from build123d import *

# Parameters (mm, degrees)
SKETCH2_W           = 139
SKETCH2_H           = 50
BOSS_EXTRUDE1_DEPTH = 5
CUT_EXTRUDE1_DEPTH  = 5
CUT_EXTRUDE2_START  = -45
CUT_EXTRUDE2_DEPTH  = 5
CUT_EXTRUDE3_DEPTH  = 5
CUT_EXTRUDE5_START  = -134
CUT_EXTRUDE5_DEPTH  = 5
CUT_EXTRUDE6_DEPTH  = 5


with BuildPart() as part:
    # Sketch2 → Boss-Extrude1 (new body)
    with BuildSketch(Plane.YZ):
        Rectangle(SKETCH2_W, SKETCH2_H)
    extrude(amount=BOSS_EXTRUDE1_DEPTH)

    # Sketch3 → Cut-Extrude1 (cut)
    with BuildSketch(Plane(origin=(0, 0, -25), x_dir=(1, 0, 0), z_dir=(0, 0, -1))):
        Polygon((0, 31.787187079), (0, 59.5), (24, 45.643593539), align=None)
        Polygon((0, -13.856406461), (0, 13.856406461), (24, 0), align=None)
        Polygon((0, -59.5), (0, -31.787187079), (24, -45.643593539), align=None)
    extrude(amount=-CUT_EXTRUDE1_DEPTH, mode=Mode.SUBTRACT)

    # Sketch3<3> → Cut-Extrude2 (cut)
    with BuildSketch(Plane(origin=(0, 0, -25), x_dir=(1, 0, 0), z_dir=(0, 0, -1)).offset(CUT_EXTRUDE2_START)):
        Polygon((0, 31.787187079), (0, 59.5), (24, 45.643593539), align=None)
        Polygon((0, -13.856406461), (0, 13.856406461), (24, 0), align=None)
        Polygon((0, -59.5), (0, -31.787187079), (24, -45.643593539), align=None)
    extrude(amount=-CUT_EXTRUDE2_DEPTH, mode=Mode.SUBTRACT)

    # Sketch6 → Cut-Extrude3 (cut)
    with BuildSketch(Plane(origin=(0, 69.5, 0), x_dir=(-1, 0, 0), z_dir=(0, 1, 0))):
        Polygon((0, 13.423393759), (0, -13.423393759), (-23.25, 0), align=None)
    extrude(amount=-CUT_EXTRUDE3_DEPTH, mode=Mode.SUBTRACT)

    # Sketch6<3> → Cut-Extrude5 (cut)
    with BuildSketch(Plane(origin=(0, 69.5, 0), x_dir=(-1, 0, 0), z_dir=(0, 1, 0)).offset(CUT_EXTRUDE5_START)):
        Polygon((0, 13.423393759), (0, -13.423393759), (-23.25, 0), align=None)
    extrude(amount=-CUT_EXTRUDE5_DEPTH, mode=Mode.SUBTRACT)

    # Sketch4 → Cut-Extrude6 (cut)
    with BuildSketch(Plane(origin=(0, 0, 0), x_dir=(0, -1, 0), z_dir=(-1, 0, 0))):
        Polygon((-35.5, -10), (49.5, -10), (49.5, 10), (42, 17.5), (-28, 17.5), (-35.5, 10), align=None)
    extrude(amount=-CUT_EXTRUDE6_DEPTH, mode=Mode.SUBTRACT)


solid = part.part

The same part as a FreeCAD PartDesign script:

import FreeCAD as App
import Part
import Sketcher
from FreeCAD import Vector
Q = App.Units.Quantity

doc = App.newDocument("Part")
body = doc.addObject("PartDesign::Body", "Body")

# Sketch on YZ plane
sketch1 = doc.addObject("Sketcher::SketchObject", "Sketch")
body.addObject(sketch1)
sketch1.AttachmentSupport = (doc.YZ_Plane, [""])
sketch1.MapMode = "FlatFace"
sketch1.addGeometry(Part.LineSegment(Vector(-70, 25, 0), Vector(-70, -25, 0)), False)
sketch1.addGeometry(Part.LineSegment(Vector(-70, -25, 0), Vector(70, -25, 0)), False)
sketch1.addGeometry(Part.LineSegment(Vector(70, -25, 0), Vector(70, 25, 0)), False)
sketch1.addGeometry(Part.LineSegment(Vector(70, 25, 0), Vector(-70, 25, 0)), False)
sketch1.addConstraint(Sketcher.Constraint("Coincident", 0, 2, 1, 1))
sketch1.addConstraint(Sketcher.Constraint("Coincident", 1, 2, 2, 1))
sketch1.addConstraint(Sketcher.Constraint("Coincident", 2, 2, 3, 1))
sketch1.addConstraint(Sketcher.Constraint("Coincident", 3, 2, 0, 1))
sketch1.addConstraint(Sketcher.Constraint("Vertical", 0))
sketch1.addConstraint(Sketcher.Constraint("Horizontal", 1))
sketch1.addConstraint(Sketcher.Constraint("Vertical", 2))
sketch1.addConstraint(Sketcher.Constraint("Horizontal", 3))
sketch1.addConstraint(Sketcher.Constraint("Symmetric", 0, 2, 2, 2, -1, 1))
sketch1.addConstraint(Sketcher.Constraint("DistanceX", 1, 1, 1, 2, Q("139 mm")))
sketch1.addConstraint(Sketcher.Constraint("DistanceY", 0, 2, 0, 1, Q("50 mm")))
pad1 = doc.addObject("PartDesign::Pad", "Pad")
body.addObject(pad1)
pad1.Profile = sketch1
pad1.Length = 5

# Sketch on XY plane
sketch2 = doc.addObject("Sketcher::SketchObject", "Sketch001")
body.addObject(sketch2)
sketch2.AttachmentSupport = (doc.XY_Plane, [""])
sketch2.MapMode = "FlatFace"
sketch2.AttachmentOffset = App.Placement(Vector(0, 0, -25), App.Rotation())
sketch2.addGeometry(Part.LineSegment(Vector(0, -60, 0), Vector(0, -32, 0)), False)
sketch2.addGeometry(Part.LineSegment(Vector(0, -32, 0), Vector(24, -46, 0)), False)
sketch2.addGeometry(Part.LineSegment(Vector(24, -46, 0), Vector(0, -60, 0)), False)
sketch2.addGeometry(Part.LineSegment(Vector(0, -14, 0), Vector(0, 14, 0)), False)
sketch2.addGeometry(Part.LineSegment(Vector(0, 14, 0), Vector(24, 0, 0)), False)
sketch2.addGeometry(Part.LineSegment(Vector(24, 0, 0), Vector(0, -14, 0)), False)
sketch2.addGeometry(Part.LineSegment(Vector(0, 32, 0), Vector(0, 60, 0)), False)
sketch2.addGeometry(Part.LineSegment(Vector(0, 60, 0), Vector(24, 46, 0)), False)
sketch2.addGeometry(Part.LineSegment(Vector(24, 46, 0), Vector(0, 32, 0)), False)
sketch2.addConstraint(Sketcher.Constraint("Coincident", 0, 2, 1, 1))
sketch2.addConstraint(Sketcher.Constraint("Coincident", 1, 2, 2, 1))
sketch2.addConstraint(Sketcher.Constraint("Coincident", 2, 2, 0, 1))
sketch2.addConstraint(Sketcher.Constraint("Coincident", 3, 2, 4, 1))
sketch2.addConstraint(Sketcher.Constraint("Coincident", 4, 2, 5, 1))
sketch2.addConstraint(Sketcher.Constraint("Coincident", 5, 2, 3, 1))
sketch2.addConstraint(Sketcher.Constraint("Coincident", 6, 2, 7, 1))
sketch2.addConstraint(Sketcher.Constraint("Coincident", 7, 2, 8, 1))
sketch2.addConstraint(Sketcher.Constraint("Coincident", 8, 2, 6, 1))
sketch2.addConstraint(Sketcher.Constraint("Vertical", 0))
sketch2.addConstraint(Sketcher.Constraint("Vertical", 3))
sketch2.addConstraint(Sketcher.Constraint("Vertical", 6))
sketch2.addConstraint(Sketcher.Constraint("Symmetric", 3, 2, 5, 2, -1, 1))
sketch2.addConstraint(Sketcher.Constraint("Symmetric", 2, 2, 6, 2, -1, 1))
sketch2.addConstraint(Sketcher.Constraint("Symmetric", 1, 2, 7, 2, -1))
sketch2.addConstraint(Sketcher.Constraint("Symmetric", 0, 2, 8, 2, -1))
sketch2.addConstraint(Sketcher.Constraint("PointOnObject", 4, 2, -1))
sketch2.addConstraint(Sketcher.Constraint("Parallel", 1, 4))
sketch2.addConstraint(Sketcher.Constraint("Parallel", 2, 5))
sketch2.addConstraint(Sketcher.Constraint("Vertical", 1, 2, 4, 2))
sketch2.addConstraint(Sketcher.Constraint("Angle", 1, Q("-30 deg")))
sketch2.addConstraint(Sketcher.Constraint("DistanceX", -1, 1, 1, 2, Q("24 mm")))
sketch2.addConstraint(Sketcher.Constraint("DistanceY", 2, 2, -1, 1, Q("59.5 mm")))
pocket1 = doc.addObject("PartDesign::Pocket", "Pocket")
body.addObject(pocket1)
pocket1.Profile = sketch2
pocket1.Length = 5
pocket1.Reversed = True

# Sketch on XY plane
sketch3 = doc.addObject("Sketcher::SketchObject", "Sketch002")
body.addObject(sketch3)
sketch3.AttachmentSupport = (doc.XY_Plane, [""])
sketch3.MapMode = "FlatFace"
sketch3.AttachmentOffset = App.Placement(Vector(0, 0, 20), App.Rotation())
sketch3.addGeometry(Part.LineSegment(Vector(0, -60, 0), Vector(0, -32, 0)), False)
sketch3.addGeometry(Part.LineSegment(Vector(0, -32, 0), Vector(24, -46, 0)), False)
sketch3.addGeometry(Part.LineSegment(Vector(24, -46, 0), Vector(0, -60, 0)), False)
sketch3.addGeometry(Part.LineSegment(Vector(0, -14, 0), Vector(0, 14, 0)), False)
sketch3.addGeometry(Part.LineSegment(Vector(0, 14, 0), Vector(24, 0, 0)), False)
sketch3.addGeometry(Part.LineSegment(Vector(24, 0, 0), Vector(0, -14, 0)), False)
sketch3.addGeometry(Part.LineSegment(Vector(0, 32, 0), Vector(0, 60, 0)), False)
sketch3.addGeometry(Part.LineSegment(Vector(0, 60, 0), Vector(24, 46, 0)), False)
sketch3.addGeometry(Part.LineSegment(Vector(24, 46, 0), Vector(0, 32, 0)), False)
sketch3.addConstraint(Sketcher.Constraint("Coincident", 0, 2, 1, 1))
sketch3.addConstraint(Sketcher.Constraint("Coincident", 1, 2, 2, 1))
sketch3.addConstraint(Sketcher.Constraint("Coincident", 2, 2, 0, 1))
sketch3.addConstraint(Sketcher.Constraint("Coincident", 3, 2, 4, 1))
sketch3.addConstraint(Sketcher.Constraint("Coincident", 4, 2, 5, 1))
sketch3.addConstraint(Sketcher.Constraint("Coincident", 5, 2, 3, 1))
sketch3.addConstraint(Sketcher.Constraint("Coincident", 6, 2, 7, 1))
sketch3.addConstraint(Sketcher.Constraint("Coincident", 7, 2, 8, 1))
sketch3.addConstraint(Sketcher.Constraint("Coincident", 8, 2, 6, 1))
sketch3.addConstraint(Sketcher.Constraint("Vertical", 0))
sketch3.addConstraint(Sketcher.Constraint("Vertical", 3))
sketch3.addConstraint(Sketcher.Constraint("Vertical", 6))
sketch3.addConstraint(Sketcher.Constraint("Symmetric", 3, 2, 5, 2, -1, 1))
sketch3.addConstraint(Sketcher.Constraint("Symmetric", 2, 2, 6, 2, -1, 1))
sketch3.addConstraint(Sketcher.Constraint("Symmetric", 1, 2, 7, 2, -1))
sketch3.addConstraint(Sketcher.Constraint("Symmetric", 0, 2, 8, 2, -1))
sketch3.addConstraint(Sketcher.Constraint("PointOnObject", 4, 2, -1))
sketch3.addConstraint(Sketcher.Constraint("Parallel", 1, 4))
sketch3.addConstraint(Sketcher.Constraint("Parallel", 2, 5))
sketch3.addConstraint(Sketcher.Constraint("Vertical", 1, 2, 4, 2))
sketch3.addConstraint(Sketcher.Constraint("Angle", 1, Q("-30 deg")))
sketch3.addConstraint(Sketcher.Constraint("DistanceX", -1, 1, 1, 2, Q("24 mm")))
sketch3.addConstraint(Sketcher.Constraint("DistanceY", 2, 2, -1, 1, Q("59.5 mm")))
pocket2 = doc.addObject("PartDesign::Pocket", "Pocket001")
body.addObject(pocket2)
pocket2.Profile = sketch3
pocket2.Length = 5
pocket2.Reversed = True

# Sketch on XZ plane
sketch4 = doc.addObject("Sketcher::SketchObject", "Sketch003")
body.addObject(sketch4)
sketch4.AttachmentSupport = (doc.XZ_Plane, [""])
sketch4.MapMode = "FlatFace"
sketch4.AttachmentOffset = App.Placement(Vector(0, 0, -69.5), App.Rotation())
sketch4.addGeometry(Part.LineSegment(Vector(0, -13, 0), Vector(0, 13, 0)), False)
sketch4.addGeometry(Part.LineSegment(Vector(0, 13, 0), Vector(23, 0, 0)), False)
sketch4.addGeometry(Part.LineSegment(Vector(23, 0, 0), Vector(0, -13, 0)), False)
sketch4.addConstraint(Sketcher.Constraint("Coincident", 0, 2, 1, 1))
sketch4.addConstraint(Sketcher.Constraint("Coincident", 1, 2, 2, 1))
sketch4.addConstraint(Sketcher.Constraint("Coincident", 2, 2, 0, 1))
sketch4.addConstraint(Sketcher.Constraint("Vertical", 0))
sketch4.addConstraint(Sketcher.Constraint("Symmetric", 0, 2, 2, 2, -1, 1))
sketch4.addConstraint(Sketcher.Constraint("PointOnObject", 1, 2, -1))
sketch4.addConstraint(Sketcher.Constraint("Angle", 1, Q("-30 deg")))
sketch4.addConstraint(Sketcher.Constraint("DistanceX", -1, 1, 1, 2, Q("23.25 mm")))
pocket3 = doc.addObject("PartDesign::Pocket", "Pocket002")
body.addObject(pocket3)
pocket3.Profile = sketch4
pocket3.Length = 5
pocket3.Reversed = True

# Sketch on XZ plane
sketch5 = doc.addObject("Sketcher::SketchObject", "Sketch004")
body.addObject(sketch5)
sketch5.AttachmentSupport = (doc.XZ_Plane, [""])
sketch5.MapMode = "FlatFace"
sketch5.AttachmentOffset = App.Placement(Vector(0, 0, 64.5), App.Rotation())
sketch5.addGeometry(Part.LineSegment(Vector(0, -13, 0), Vector(0, 13, 0)), False)
sketch5.addGeometry(Part.LineSegment(Vector(0, 13, 0), Vector(23, 0, 0)), False)
sketch5.addGeometry(Part.LineSegment(Vector(23, 0, 0), Vector(0, -13, 0)), False)
sketch5.addConstraint(Sketcher.Constraint("Coincident", 0, 2, 1, 1))
sketch5.addConstraint(Sketcher.Constraint("Coincident", 1, 2, 2, 1))
sketch5.addConstraint(Sketcher.Constraint("Coincident", 2, 2, 0, 1))
sketch5.addConstraint(Sketcher.Constraint("Vertical", 0))
sketch5.addConstraint(Sketcher.Constraint("Symmetric", 0, 2, 2, 2, -1, 1))
sketch5.addConstraint(Sketcher.Constraint("PointOnObject", 1, 2, -1))
sketch5.addConstraint(Sketcher.Constraint("Angle", 1, Q("-30 deg")))
sketch5.addConstraint(Sketcher.Constraint("DistanceX", -1, 1, 1, 2, Q("23.25 mm")))
pocket4 = doc.addObject("PartDesign::Pocket", "Pocket003")
body.addObject(pocket4)
pocket4.Profile = sketch5
pocket4.Length = 5
pocket4.Reversed = True

# Sketch on YZ plane
sketch6 = doc.addObject("Sketcher::SketchObject", "Sketch005")
body.addObject(sketch6)
sketch6.AttachmentSupport = (doc.YZ_Plane, [""])
sketch6.MapMode = "FlatFace"
sketch6.addGeometry(Part.LineSegment(Vector(36, -10, 0), Vector(-50, -10, 0)), False)
sketch6.addGeometry(Part.LineSegment(Vector(-50, -10, 0), Vector(-50, 10, 0)), False)
sketch6.addGeometry(Part.LineSegment(Vector(-50, 10, 0), Vector(-42, 18, 0)), False)
sketch6.addGeometry(Part.LineSegment(Vector(-42, 18, 0), Vector(28, 18, 0)), False)
sketch6.addGeometry(Part.LineSegment(Vector(28, 18, 0), Vector(36, 10, 0)), False)
sketch6.addGeometry(Part.LineSegment(Vector(36, 10, 0), Vector(36, -10, 0)), False)
sketch6.addConstraint(Sketcher.Constraint("Coincident", 0, 2, 1, 1))
sketch6.addConstraint(Sketcher.Constraint("Coincident", 1, 2, 2, 1))
sketch6.addConstraint(Sketcher.Constraint("Coincident", 2, 2, 3, 1))
sketch6.addConstraint(Sketcher.Constraint("Coincident", 3, 2, 4, 1))
sketch6.addConstraint(Sketcher.Constraint("Coincident", 4, 2, 5, 1))
sketch6.addConstraint(Sketcher.Constraint("Coincident", 5, 2, 0, 1))
sketch6.addConstraint(Sketcher.Constraint("Horizontal", 0))
sketch6.addConstraint(Sketcher.Constraint("Vertical", 1))
sketch6.addConstraint(Sketcher.Constraint("Horizontal", 3))
sketch6.addConstraint(Sketcher.Constraint("Vertical", 5))
sketch6.addConstraint(Sketcher.Constraint("Perpendicular", 2, 4))
sketch6.addConstraint(Sketcher.Constraint("Horizontal", 1, 2, 4, 2))
sketch6.addConstraint(Sketcher.Constraint("Equal", 2, 4))
sketch6.addConstraint(Sketcher.Constraint("DistanceX", 0, 2, 0, 1, Q("85 mm")))
sketch6.addConstraint(Sketcher.Constraint("DistanceX", 3, 1, 3, 2, Q("70 mm")))
sketch6.addConstraint(Sketcher.Constraint("DistanceY", 1, 1, 1, 2, Q("20 mm")))
sketch6.addConstraint(Sketcher.Constraint("DistanceY", 0, 2, -1, 1, Q("10 mm")))
sketch6.addConstraint(Sketcher.Constraint("DistanceX", 2, 2, -1, 1, Q("42 mm")))
pocket5 = doc.addObject("PartDesign::Pocket", "Pocket004")
body.addObject(pocket5)
pocket5.Profile = sketch6
pocket5.Length = 5
pocket5.Reversed = True

doc.recompute()
